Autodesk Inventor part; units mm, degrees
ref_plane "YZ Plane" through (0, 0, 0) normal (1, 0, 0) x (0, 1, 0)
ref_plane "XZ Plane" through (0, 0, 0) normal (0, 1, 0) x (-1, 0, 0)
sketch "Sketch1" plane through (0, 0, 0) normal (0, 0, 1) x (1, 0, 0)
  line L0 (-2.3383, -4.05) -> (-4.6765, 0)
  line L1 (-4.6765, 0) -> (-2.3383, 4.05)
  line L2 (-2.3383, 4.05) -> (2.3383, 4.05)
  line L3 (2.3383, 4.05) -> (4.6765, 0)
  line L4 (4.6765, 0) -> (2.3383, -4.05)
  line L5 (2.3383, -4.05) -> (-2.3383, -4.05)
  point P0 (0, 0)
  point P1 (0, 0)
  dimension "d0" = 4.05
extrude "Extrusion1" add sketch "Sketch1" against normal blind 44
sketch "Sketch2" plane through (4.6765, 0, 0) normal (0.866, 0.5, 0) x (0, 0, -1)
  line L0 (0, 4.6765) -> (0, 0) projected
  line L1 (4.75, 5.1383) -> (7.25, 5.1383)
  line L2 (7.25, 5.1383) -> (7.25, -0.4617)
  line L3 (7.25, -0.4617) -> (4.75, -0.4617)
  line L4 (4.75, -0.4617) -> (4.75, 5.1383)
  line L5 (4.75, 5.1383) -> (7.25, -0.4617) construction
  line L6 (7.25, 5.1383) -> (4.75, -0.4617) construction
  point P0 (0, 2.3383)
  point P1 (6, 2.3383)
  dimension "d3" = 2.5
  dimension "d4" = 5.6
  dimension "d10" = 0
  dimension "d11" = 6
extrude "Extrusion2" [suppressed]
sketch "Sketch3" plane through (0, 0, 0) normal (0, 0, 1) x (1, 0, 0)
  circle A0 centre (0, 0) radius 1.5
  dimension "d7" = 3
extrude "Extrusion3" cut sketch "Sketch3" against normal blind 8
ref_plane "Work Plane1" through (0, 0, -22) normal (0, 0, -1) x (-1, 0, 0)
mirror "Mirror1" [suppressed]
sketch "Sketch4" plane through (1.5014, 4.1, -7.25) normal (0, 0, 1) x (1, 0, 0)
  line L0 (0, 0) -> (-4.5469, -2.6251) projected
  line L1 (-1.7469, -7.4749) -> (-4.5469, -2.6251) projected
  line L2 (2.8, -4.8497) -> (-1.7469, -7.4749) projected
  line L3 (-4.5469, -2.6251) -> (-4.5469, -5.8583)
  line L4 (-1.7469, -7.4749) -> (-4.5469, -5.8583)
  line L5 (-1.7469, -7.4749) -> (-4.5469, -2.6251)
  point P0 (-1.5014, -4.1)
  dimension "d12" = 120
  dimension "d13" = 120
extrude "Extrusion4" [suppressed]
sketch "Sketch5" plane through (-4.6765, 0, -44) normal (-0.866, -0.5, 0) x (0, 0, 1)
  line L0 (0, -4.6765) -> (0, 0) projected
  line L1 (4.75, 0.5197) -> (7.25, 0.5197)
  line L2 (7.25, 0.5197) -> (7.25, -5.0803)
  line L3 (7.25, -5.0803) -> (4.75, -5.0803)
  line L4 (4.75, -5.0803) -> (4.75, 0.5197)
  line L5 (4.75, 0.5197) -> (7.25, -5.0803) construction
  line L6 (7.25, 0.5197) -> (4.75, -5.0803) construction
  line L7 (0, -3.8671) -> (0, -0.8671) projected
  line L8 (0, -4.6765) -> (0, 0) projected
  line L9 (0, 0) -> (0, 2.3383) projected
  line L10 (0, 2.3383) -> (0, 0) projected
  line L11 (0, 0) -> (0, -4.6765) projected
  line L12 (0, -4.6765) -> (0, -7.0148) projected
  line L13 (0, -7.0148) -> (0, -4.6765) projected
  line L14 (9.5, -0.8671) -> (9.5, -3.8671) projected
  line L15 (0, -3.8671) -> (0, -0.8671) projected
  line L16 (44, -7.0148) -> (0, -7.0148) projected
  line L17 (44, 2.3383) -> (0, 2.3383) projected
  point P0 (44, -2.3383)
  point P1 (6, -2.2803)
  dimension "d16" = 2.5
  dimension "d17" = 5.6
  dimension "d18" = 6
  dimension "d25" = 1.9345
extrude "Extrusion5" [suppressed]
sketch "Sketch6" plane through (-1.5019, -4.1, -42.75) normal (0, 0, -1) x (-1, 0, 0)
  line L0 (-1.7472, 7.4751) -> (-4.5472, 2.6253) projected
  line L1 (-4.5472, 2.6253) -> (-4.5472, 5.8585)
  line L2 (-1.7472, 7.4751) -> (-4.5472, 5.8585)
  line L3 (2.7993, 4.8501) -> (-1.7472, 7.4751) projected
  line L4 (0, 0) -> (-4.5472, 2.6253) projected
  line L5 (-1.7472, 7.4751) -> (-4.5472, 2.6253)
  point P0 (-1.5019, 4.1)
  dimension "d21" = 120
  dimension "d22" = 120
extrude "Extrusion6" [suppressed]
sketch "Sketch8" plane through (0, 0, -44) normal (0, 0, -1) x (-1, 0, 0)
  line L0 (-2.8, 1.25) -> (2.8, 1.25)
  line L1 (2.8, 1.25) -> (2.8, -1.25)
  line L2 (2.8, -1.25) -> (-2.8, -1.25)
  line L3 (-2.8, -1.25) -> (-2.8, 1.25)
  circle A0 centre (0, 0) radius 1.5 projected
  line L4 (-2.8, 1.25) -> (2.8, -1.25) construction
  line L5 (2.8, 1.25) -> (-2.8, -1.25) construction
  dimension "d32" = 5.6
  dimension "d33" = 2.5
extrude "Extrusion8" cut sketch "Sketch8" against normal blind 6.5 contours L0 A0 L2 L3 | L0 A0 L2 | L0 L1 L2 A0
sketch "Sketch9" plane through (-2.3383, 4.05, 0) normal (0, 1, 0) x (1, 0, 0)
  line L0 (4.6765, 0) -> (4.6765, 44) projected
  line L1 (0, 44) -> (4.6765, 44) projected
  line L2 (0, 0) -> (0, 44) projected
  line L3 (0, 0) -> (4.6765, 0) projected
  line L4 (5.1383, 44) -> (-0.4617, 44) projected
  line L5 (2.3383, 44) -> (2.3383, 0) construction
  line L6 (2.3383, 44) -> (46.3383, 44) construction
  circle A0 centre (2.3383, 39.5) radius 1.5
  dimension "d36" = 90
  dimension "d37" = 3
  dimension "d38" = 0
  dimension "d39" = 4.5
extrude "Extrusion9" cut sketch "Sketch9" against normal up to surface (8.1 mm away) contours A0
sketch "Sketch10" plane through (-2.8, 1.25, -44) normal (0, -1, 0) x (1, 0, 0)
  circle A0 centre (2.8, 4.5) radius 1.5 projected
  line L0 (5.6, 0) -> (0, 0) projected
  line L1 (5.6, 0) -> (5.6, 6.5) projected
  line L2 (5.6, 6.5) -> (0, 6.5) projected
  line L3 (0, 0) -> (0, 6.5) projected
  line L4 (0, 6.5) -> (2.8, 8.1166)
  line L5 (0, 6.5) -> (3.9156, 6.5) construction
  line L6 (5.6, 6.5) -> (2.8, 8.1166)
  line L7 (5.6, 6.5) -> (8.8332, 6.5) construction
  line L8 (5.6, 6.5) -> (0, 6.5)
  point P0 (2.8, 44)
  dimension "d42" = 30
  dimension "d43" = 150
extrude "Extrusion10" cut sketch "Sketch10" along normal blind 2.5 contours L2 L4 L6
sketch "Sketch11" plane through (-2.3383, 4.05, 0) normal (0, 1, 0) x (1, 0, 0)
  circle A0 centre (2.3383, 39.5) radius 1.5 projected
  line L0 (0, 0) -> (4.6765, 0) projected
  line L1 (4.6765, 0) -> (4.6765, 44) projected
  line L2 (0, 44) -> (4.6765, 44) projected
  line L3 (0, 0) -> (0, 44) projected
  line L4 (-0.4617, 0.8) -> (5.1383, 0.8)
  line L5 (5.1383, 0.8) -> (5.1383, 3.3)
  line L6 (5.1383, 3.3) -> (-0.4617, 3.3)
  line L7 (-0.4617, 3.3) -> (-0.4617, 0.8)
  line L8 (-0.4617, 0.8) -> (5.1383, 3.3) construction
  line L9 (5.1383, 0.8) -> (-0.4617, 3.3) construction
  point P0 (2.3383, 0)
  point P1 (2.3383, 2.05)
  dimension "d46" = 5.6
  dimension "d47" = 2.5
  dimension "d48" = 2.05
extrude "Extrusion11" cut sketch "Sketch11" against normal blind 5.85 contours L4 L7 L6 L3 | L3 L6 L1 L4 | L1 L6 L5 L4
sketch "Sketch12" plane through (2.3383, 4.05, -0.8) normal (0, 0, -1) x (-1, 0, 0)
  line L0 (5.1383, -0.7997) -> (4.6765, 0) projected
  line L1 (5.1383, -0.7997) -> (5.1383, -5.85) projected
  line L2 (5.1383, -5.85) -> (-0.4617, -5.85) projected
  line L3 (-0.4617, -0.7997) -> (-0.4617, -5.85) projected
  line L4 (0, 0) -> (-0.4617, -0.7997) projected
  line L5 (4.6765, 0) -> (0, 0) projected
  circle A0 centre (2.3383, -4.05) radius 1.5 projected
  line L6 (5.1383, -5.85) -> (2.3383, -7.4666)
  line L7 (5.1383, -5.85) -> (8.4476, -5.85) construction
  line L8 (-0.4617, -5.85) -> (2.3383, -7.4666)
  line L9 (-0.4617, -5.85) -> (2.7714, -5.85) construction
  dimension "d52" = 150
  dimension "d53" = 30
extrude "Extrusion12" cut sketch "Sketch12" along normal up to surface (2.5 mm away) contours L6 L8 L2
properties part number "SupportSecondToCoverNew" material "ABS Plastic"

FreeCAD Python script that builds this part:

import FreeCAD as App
import Part
import Sketcher
from FreeCAD import Vector
Q = App.Units.Quantity

doc = App.newDocument("Part")
body = doc.addObject("PartDesign::Body", "Body")

# Sketch on XY plane
sketch1 = body.newObject("Sketcher::SketchObject", "Sketch")
sketch1.AttachmentSupport = (doc.getObject("XY_Plane"), [""])
sketch1.MapMode = "FlatFace"
sketch1.addGeometry([
    Part.LineSegment(Vector(-4.7, 0, 0), Vector(-2.3, -4, 0)),  # 0
    Part.LineSegment(Vector(-2.3, -4, 0), Vector(2.3, -4, 0)),  # 1
    Part.LineSegment(Vector(2.3, -4, 0), Vector(4.7, 0, 0)),  # 2
    Part.LineSegment(Vector(4.7, 0, 0), Vector(2.3, 4, 0)),  # 3
    Part.LineSegment(Vector(2.3, 4, 0), Vector(-2.3, 4, 0)),  # 4
    Part.LineSegment(Vector(-2.3, 4, 0), Vector(-4.7, 0, 0)),  # 5
], False)
sketch1.addConstraint([
    Sketcher.Constraint("Coincident", 0, 2, 1, 1),
    Sketcher.Constraint("Coincident", 1, 2, 2, 1),
    Sketcher.Constraint("Coincident", 2, 2, 3, 1),
    Sketcher.Constraint("Coincident", 3, 2, 4, 1),
    Sketcher.Constraint("Coincident", 4, 2, 5, 1),
    Sketcher.Constraint("Coincident", 5, 2, 0, 1),
    Sketcher.Constraint("Horizontal", 1),
    Sketcher.Constraint("Horizontal", 4),
    Sketcher.Constraint("Symmetric", 0, 2, 3, 2, -1, 1),
    Sketcher.Constraint("Symmetric", 2, 2, 5, 2, -1, 1),
    Sketcher.Constraint("PointOnObject", 2, 2, -1),
    Sketcher.Constraint("Parallel", 2, 5),
    Sketcher.Constraint("Vertical", 1, 2, 3, 2),
    Sketcher.Constraint("DistanceY", 0, 2, -1, 1, 4.05),
    Sketcher.Constraint("Angle", 0, Q("-60.0007 deg")),
    Sketcher.Constraint("DistanceX", 1, 1, 1, 2, 4.6766),
])
pad1 = body.newObject("PartDesign::Pad", "Pad")
pad1.Profile = sketch1
pad1.Length = 44
pad1.Reversed = True

# Sketch on XY plane
sketch2 = body.newObject("Sketcher::SketchObject", "Sketch001")
sketch2.AttachmentSupport = (doc.getObject("XY_Plane"), [""])
sketch2.MapMode = "FlatFace"
sketch2.addGeometry(Part.Circle(Vector(0, 0, 0), Vector(0, 0, 1), 1.5), False)
sketch2.addConstraint([
    Sketcher.Constraint("Coincident", 0, 3, -1, 1),
    Sketcher.Constraint("Diameter", 0, 3.0),
])
pocket1 = body.newObject("PartDesign::Pocket", "Pocket")
pocket1.Profile = sketch2
pocket1.Length = 8

# Sketch on XY plane
sketch3 = body.newObject("Sketcher::SketchObject", "Sketch002")
sketch3.AttachmentSupport = (doc.getObject("XY_Plane"), [""])
sketch3.MapMode = "FlatFace"
sketch3.AttachmentOffset = App.Placement(Vector(0, 0, -44), App.Rotation())
sketch3.addGeometry([
    Part.LineSegment(Vector(2.8, 1.2, 0), Vector(2.8, -1.2, 0)),
    Part.LineSegment(Vector(2.8, -1.2, 0), Vector(-2.8, -1.2, 0)),
    Part.LineSegment(Vector(-2.8, -1.2, 0), Vector(-2.8, 1.2, 0)),
    Part.LineSegment(Vector(-2.8, 1.2, 0), Vector(2.8, 1.2, 0)),
], False)
sketch3.addConstraint([
    Sketcher.Constraint("Coincident", 0, 2, 1, 1),
    Sketcher.Constraint("Coincident", 1, 2, 2, 1),
    Sketcher.Constraint("Coincident", 2, 2, 3, 1),
    Sketcher.Constraint("Coincident", 3, 2, 0, 1),
    Sketcher.Constraint("Vertical", 0),
    Sketcher.Constraint("Horizontal", 1),
    Sketcher.Constraint("Vertical", 2),
    Sketcher.Constraint("Horizontal", 3),
    Sketcher.Constraint("Symmetric", 0, 2, 2, 2, -1, 1),
    Sketcher.Constraint("DistanceX", 1, 2, 1, 1, 5.6),
    Sketcher.Constraint("DistanceY", 0, 2, 0, 1, 2.5),
])
pocket2 = body.newObject("PartDesign::Pocket", "Pocket001")
pocket2.Profile = sketch3
pocket2.Length = 6.5
pocket2.Reversed = True

# Sketch on XZ plane
sketch4 = body.newObject("Sketcher::SketchObject", "Sketch003")
sketch4.AttachmentSupport = (doc.getObject("XZ_Plane"), [""])
sketch4.MapMode = "FlatFace"
sketch4.AttachmentOffset = App.Placement(Vector(0, 0, -4.05), App.Rotation())
sketch4.addGeometry(Part.Circle(Vector(0, -39.5, 0), Vector(0, 0, 1), 1.5), False)
sketch4.addConstraint([
    Sketcher.Constraint("PointOnObject", 0, 3, -2),
    Sketcher.Constraint("Diameter", 0, 3.0),
    Sketcher.Constraint("DistanceY", 0, 3, -1, 1, 39.5),
])
pocket3 = body.newObject("PartDesign::Pocket", "Pocket002")
pocket3.Profile = sketch4
pocket3.Length = 8.1
pocket3.Reversed = True

# Sketch on XZ plane
sketch5 = body.newObject("Sketcher::SketchObject", "Sketch004")
sketch5.AttachmentSupport = (doc.getObject("XZ_Plane"), [""])
sketch5.MapMode = "FlatFace"
sketch5.AttachmentOffset = App.Placement(Vector(0, 0, -1.25), App.Rotation())
sketch5.addGeometry([
    Part.LineSegment(Vector(-2.8, -37.5, 0), Vector(2.8, -37.5, 0)),
    Part.LineSegment(Vector(2.8, -37.5, 0), Vector(0, -35.9, 0)),
    Part.LineSegment(Vector(0, -35.9, 0), Vector(-2.8, -37.5, 0)),
], False)
sketch5.addConstraint([
    Sketcher.Constraint("Coincident", 0, 2, 1, 1),
    Sketcher.Constraint("Coincident", 1, 2, 2, 1),
    Sketcher.Constraint("Coincident", 2, 2, 0, 1),
    Sketcher.Constraint("Horizontal", 0),
    Sketcher.Constraint("PointOnObject", 1, 2, -2),
    Sketcher.Constraint("Equal", 1, 2),
    Sketcher.Constraint("Angle", 1, Q("149.9997 deg")),
    Sketcher.Constraint("DistanceX", 0, 1, 0, 2, 5.6),
    Sketcher.Constraint("DistanceY", 0, 2, -1, 1, 37.5),
])
pocket4 = body.newObject("PartDesign::Pocket", "Pocket003")
pocket4.Profile = sketch5
pocket4.Length = 2.5
pocket4.Reversed = True

# Sketch on XZ plane
sketch6 = body.newObject("Sketcher::SketchObject", "Sketch005")
sketch6.AttachmentSupport = (doc.getObject("XZ_Plane"), [""])
sketch6.MapMode = "FlatFace"
sketch6.AttachmentOffset = App.Placement(Vector(0, 0, -4.05), App.Rotation())
sketch6.addGeometry([
    Part.LineSegment(Vector(-2.8, -0.8, 0), Vector(2.8, -0.8, 0)),
    Part.LineSegment(Vector(2.8, -0.8, 0), Vector(2.8, -3.3, 0)),
    Part.LineSegment(Vector(2.8, -3.3, 0), Vector(-2.8, -3.3, 0)),
    Part.LineSegment(Vector(-2.8, -3.3, 0), Vector(-2.8, -0.8, 0)),
], False)
sketch6.addConstraint([
    Sketcher.Constraint("Coincident", 0, 2, 1, 1),
    Sketcher.Constraint("Coincident", 1, 2, 2, 1),
    Sketcher.Constraint("Coincident", 2, 2, 3, 1),
    Sketcher.Constraint("Coincident", 3, 2, 0, 1),
    Sketcher.Constraint("Horizontal", 0),
    Sketcher.Constraint("Vertical", 1),
    Sketcher.Constraint("Horizontal", 2),
    Sketcher.Constraint("Vertical", 3),
    Sketcher.Constraint("DistanceX", 0, 1, 0, 2, 5.6),
    Sketcher.Constraint("DistanceY", 1, 2, 1, 1, 2.5),
    Sketcher.Constraint("DistanceX", -1, 1, 0, 2, 2.8),
    Sketcher.Constraint("DistanceY", 0, 2, -1, 1, 0.8),
])
pocket5 = body.newObject("PartDesign::Pocket", "Pocket004")
pocket5.Profile = sketch6
pocket5.Length = 5.85
pocket5.Reversed = True

# Sketch on XY plane
sketch7 = body.newObject("Sketcher::SketchObject", "Sketch006")
sketch7.AttachmentSupport = (doc.getObject("XY_Plane"), [""])
sketch7.MapMode = "FlatFace"
sketch7.AttachmentOffset = App.Placement(Vector(0, 0, -0.8), App.Rotation())
sketch7.addGeometry([
    Part.LineSegment(Vector(0, -3.4, 0), Vector(-2.8, -1.8, 0)),
    Part.LineSegment(Vector(-2.8, -1.8, 0), Vector(2.8, -1.8, 0)),
    Part.LineSegment(Vector(2.8, -1.8, 0), Vector(0, -3.4, 0)),
], False)
sketch7.addConstraint([
    Sketcher.Constraint("Coincident", 0, 2, 1, 1),
    Sketcher.Constraint("Coincident", 1, 2, 2, 1),
    Sketcher.Constraint("Coincident", 2, 2, 0, 1),
    Sketcher.Constraint("Horizontal", 1),
    Sketcher.Constraint("PointOnObject", 2, 2, -2),
    Sketcher.Constraint("Equal", 0, 2),
    Sketcher.Constraint("Angle", 0, Q("149.9997 deg")),
    Sketcher.Constraint("DistanceX", 1, 1, 1, 2, 5.6),
    Sketcher.Constraint("DistanceY", 0, 2, -1, 1, 1.8),
])
pocket6 = body.newObject("PartDesign::Pocket", "Pocket005")
pocket6.Profile = sketch7
pocket6.Length = 2.5

doc.recompute()
